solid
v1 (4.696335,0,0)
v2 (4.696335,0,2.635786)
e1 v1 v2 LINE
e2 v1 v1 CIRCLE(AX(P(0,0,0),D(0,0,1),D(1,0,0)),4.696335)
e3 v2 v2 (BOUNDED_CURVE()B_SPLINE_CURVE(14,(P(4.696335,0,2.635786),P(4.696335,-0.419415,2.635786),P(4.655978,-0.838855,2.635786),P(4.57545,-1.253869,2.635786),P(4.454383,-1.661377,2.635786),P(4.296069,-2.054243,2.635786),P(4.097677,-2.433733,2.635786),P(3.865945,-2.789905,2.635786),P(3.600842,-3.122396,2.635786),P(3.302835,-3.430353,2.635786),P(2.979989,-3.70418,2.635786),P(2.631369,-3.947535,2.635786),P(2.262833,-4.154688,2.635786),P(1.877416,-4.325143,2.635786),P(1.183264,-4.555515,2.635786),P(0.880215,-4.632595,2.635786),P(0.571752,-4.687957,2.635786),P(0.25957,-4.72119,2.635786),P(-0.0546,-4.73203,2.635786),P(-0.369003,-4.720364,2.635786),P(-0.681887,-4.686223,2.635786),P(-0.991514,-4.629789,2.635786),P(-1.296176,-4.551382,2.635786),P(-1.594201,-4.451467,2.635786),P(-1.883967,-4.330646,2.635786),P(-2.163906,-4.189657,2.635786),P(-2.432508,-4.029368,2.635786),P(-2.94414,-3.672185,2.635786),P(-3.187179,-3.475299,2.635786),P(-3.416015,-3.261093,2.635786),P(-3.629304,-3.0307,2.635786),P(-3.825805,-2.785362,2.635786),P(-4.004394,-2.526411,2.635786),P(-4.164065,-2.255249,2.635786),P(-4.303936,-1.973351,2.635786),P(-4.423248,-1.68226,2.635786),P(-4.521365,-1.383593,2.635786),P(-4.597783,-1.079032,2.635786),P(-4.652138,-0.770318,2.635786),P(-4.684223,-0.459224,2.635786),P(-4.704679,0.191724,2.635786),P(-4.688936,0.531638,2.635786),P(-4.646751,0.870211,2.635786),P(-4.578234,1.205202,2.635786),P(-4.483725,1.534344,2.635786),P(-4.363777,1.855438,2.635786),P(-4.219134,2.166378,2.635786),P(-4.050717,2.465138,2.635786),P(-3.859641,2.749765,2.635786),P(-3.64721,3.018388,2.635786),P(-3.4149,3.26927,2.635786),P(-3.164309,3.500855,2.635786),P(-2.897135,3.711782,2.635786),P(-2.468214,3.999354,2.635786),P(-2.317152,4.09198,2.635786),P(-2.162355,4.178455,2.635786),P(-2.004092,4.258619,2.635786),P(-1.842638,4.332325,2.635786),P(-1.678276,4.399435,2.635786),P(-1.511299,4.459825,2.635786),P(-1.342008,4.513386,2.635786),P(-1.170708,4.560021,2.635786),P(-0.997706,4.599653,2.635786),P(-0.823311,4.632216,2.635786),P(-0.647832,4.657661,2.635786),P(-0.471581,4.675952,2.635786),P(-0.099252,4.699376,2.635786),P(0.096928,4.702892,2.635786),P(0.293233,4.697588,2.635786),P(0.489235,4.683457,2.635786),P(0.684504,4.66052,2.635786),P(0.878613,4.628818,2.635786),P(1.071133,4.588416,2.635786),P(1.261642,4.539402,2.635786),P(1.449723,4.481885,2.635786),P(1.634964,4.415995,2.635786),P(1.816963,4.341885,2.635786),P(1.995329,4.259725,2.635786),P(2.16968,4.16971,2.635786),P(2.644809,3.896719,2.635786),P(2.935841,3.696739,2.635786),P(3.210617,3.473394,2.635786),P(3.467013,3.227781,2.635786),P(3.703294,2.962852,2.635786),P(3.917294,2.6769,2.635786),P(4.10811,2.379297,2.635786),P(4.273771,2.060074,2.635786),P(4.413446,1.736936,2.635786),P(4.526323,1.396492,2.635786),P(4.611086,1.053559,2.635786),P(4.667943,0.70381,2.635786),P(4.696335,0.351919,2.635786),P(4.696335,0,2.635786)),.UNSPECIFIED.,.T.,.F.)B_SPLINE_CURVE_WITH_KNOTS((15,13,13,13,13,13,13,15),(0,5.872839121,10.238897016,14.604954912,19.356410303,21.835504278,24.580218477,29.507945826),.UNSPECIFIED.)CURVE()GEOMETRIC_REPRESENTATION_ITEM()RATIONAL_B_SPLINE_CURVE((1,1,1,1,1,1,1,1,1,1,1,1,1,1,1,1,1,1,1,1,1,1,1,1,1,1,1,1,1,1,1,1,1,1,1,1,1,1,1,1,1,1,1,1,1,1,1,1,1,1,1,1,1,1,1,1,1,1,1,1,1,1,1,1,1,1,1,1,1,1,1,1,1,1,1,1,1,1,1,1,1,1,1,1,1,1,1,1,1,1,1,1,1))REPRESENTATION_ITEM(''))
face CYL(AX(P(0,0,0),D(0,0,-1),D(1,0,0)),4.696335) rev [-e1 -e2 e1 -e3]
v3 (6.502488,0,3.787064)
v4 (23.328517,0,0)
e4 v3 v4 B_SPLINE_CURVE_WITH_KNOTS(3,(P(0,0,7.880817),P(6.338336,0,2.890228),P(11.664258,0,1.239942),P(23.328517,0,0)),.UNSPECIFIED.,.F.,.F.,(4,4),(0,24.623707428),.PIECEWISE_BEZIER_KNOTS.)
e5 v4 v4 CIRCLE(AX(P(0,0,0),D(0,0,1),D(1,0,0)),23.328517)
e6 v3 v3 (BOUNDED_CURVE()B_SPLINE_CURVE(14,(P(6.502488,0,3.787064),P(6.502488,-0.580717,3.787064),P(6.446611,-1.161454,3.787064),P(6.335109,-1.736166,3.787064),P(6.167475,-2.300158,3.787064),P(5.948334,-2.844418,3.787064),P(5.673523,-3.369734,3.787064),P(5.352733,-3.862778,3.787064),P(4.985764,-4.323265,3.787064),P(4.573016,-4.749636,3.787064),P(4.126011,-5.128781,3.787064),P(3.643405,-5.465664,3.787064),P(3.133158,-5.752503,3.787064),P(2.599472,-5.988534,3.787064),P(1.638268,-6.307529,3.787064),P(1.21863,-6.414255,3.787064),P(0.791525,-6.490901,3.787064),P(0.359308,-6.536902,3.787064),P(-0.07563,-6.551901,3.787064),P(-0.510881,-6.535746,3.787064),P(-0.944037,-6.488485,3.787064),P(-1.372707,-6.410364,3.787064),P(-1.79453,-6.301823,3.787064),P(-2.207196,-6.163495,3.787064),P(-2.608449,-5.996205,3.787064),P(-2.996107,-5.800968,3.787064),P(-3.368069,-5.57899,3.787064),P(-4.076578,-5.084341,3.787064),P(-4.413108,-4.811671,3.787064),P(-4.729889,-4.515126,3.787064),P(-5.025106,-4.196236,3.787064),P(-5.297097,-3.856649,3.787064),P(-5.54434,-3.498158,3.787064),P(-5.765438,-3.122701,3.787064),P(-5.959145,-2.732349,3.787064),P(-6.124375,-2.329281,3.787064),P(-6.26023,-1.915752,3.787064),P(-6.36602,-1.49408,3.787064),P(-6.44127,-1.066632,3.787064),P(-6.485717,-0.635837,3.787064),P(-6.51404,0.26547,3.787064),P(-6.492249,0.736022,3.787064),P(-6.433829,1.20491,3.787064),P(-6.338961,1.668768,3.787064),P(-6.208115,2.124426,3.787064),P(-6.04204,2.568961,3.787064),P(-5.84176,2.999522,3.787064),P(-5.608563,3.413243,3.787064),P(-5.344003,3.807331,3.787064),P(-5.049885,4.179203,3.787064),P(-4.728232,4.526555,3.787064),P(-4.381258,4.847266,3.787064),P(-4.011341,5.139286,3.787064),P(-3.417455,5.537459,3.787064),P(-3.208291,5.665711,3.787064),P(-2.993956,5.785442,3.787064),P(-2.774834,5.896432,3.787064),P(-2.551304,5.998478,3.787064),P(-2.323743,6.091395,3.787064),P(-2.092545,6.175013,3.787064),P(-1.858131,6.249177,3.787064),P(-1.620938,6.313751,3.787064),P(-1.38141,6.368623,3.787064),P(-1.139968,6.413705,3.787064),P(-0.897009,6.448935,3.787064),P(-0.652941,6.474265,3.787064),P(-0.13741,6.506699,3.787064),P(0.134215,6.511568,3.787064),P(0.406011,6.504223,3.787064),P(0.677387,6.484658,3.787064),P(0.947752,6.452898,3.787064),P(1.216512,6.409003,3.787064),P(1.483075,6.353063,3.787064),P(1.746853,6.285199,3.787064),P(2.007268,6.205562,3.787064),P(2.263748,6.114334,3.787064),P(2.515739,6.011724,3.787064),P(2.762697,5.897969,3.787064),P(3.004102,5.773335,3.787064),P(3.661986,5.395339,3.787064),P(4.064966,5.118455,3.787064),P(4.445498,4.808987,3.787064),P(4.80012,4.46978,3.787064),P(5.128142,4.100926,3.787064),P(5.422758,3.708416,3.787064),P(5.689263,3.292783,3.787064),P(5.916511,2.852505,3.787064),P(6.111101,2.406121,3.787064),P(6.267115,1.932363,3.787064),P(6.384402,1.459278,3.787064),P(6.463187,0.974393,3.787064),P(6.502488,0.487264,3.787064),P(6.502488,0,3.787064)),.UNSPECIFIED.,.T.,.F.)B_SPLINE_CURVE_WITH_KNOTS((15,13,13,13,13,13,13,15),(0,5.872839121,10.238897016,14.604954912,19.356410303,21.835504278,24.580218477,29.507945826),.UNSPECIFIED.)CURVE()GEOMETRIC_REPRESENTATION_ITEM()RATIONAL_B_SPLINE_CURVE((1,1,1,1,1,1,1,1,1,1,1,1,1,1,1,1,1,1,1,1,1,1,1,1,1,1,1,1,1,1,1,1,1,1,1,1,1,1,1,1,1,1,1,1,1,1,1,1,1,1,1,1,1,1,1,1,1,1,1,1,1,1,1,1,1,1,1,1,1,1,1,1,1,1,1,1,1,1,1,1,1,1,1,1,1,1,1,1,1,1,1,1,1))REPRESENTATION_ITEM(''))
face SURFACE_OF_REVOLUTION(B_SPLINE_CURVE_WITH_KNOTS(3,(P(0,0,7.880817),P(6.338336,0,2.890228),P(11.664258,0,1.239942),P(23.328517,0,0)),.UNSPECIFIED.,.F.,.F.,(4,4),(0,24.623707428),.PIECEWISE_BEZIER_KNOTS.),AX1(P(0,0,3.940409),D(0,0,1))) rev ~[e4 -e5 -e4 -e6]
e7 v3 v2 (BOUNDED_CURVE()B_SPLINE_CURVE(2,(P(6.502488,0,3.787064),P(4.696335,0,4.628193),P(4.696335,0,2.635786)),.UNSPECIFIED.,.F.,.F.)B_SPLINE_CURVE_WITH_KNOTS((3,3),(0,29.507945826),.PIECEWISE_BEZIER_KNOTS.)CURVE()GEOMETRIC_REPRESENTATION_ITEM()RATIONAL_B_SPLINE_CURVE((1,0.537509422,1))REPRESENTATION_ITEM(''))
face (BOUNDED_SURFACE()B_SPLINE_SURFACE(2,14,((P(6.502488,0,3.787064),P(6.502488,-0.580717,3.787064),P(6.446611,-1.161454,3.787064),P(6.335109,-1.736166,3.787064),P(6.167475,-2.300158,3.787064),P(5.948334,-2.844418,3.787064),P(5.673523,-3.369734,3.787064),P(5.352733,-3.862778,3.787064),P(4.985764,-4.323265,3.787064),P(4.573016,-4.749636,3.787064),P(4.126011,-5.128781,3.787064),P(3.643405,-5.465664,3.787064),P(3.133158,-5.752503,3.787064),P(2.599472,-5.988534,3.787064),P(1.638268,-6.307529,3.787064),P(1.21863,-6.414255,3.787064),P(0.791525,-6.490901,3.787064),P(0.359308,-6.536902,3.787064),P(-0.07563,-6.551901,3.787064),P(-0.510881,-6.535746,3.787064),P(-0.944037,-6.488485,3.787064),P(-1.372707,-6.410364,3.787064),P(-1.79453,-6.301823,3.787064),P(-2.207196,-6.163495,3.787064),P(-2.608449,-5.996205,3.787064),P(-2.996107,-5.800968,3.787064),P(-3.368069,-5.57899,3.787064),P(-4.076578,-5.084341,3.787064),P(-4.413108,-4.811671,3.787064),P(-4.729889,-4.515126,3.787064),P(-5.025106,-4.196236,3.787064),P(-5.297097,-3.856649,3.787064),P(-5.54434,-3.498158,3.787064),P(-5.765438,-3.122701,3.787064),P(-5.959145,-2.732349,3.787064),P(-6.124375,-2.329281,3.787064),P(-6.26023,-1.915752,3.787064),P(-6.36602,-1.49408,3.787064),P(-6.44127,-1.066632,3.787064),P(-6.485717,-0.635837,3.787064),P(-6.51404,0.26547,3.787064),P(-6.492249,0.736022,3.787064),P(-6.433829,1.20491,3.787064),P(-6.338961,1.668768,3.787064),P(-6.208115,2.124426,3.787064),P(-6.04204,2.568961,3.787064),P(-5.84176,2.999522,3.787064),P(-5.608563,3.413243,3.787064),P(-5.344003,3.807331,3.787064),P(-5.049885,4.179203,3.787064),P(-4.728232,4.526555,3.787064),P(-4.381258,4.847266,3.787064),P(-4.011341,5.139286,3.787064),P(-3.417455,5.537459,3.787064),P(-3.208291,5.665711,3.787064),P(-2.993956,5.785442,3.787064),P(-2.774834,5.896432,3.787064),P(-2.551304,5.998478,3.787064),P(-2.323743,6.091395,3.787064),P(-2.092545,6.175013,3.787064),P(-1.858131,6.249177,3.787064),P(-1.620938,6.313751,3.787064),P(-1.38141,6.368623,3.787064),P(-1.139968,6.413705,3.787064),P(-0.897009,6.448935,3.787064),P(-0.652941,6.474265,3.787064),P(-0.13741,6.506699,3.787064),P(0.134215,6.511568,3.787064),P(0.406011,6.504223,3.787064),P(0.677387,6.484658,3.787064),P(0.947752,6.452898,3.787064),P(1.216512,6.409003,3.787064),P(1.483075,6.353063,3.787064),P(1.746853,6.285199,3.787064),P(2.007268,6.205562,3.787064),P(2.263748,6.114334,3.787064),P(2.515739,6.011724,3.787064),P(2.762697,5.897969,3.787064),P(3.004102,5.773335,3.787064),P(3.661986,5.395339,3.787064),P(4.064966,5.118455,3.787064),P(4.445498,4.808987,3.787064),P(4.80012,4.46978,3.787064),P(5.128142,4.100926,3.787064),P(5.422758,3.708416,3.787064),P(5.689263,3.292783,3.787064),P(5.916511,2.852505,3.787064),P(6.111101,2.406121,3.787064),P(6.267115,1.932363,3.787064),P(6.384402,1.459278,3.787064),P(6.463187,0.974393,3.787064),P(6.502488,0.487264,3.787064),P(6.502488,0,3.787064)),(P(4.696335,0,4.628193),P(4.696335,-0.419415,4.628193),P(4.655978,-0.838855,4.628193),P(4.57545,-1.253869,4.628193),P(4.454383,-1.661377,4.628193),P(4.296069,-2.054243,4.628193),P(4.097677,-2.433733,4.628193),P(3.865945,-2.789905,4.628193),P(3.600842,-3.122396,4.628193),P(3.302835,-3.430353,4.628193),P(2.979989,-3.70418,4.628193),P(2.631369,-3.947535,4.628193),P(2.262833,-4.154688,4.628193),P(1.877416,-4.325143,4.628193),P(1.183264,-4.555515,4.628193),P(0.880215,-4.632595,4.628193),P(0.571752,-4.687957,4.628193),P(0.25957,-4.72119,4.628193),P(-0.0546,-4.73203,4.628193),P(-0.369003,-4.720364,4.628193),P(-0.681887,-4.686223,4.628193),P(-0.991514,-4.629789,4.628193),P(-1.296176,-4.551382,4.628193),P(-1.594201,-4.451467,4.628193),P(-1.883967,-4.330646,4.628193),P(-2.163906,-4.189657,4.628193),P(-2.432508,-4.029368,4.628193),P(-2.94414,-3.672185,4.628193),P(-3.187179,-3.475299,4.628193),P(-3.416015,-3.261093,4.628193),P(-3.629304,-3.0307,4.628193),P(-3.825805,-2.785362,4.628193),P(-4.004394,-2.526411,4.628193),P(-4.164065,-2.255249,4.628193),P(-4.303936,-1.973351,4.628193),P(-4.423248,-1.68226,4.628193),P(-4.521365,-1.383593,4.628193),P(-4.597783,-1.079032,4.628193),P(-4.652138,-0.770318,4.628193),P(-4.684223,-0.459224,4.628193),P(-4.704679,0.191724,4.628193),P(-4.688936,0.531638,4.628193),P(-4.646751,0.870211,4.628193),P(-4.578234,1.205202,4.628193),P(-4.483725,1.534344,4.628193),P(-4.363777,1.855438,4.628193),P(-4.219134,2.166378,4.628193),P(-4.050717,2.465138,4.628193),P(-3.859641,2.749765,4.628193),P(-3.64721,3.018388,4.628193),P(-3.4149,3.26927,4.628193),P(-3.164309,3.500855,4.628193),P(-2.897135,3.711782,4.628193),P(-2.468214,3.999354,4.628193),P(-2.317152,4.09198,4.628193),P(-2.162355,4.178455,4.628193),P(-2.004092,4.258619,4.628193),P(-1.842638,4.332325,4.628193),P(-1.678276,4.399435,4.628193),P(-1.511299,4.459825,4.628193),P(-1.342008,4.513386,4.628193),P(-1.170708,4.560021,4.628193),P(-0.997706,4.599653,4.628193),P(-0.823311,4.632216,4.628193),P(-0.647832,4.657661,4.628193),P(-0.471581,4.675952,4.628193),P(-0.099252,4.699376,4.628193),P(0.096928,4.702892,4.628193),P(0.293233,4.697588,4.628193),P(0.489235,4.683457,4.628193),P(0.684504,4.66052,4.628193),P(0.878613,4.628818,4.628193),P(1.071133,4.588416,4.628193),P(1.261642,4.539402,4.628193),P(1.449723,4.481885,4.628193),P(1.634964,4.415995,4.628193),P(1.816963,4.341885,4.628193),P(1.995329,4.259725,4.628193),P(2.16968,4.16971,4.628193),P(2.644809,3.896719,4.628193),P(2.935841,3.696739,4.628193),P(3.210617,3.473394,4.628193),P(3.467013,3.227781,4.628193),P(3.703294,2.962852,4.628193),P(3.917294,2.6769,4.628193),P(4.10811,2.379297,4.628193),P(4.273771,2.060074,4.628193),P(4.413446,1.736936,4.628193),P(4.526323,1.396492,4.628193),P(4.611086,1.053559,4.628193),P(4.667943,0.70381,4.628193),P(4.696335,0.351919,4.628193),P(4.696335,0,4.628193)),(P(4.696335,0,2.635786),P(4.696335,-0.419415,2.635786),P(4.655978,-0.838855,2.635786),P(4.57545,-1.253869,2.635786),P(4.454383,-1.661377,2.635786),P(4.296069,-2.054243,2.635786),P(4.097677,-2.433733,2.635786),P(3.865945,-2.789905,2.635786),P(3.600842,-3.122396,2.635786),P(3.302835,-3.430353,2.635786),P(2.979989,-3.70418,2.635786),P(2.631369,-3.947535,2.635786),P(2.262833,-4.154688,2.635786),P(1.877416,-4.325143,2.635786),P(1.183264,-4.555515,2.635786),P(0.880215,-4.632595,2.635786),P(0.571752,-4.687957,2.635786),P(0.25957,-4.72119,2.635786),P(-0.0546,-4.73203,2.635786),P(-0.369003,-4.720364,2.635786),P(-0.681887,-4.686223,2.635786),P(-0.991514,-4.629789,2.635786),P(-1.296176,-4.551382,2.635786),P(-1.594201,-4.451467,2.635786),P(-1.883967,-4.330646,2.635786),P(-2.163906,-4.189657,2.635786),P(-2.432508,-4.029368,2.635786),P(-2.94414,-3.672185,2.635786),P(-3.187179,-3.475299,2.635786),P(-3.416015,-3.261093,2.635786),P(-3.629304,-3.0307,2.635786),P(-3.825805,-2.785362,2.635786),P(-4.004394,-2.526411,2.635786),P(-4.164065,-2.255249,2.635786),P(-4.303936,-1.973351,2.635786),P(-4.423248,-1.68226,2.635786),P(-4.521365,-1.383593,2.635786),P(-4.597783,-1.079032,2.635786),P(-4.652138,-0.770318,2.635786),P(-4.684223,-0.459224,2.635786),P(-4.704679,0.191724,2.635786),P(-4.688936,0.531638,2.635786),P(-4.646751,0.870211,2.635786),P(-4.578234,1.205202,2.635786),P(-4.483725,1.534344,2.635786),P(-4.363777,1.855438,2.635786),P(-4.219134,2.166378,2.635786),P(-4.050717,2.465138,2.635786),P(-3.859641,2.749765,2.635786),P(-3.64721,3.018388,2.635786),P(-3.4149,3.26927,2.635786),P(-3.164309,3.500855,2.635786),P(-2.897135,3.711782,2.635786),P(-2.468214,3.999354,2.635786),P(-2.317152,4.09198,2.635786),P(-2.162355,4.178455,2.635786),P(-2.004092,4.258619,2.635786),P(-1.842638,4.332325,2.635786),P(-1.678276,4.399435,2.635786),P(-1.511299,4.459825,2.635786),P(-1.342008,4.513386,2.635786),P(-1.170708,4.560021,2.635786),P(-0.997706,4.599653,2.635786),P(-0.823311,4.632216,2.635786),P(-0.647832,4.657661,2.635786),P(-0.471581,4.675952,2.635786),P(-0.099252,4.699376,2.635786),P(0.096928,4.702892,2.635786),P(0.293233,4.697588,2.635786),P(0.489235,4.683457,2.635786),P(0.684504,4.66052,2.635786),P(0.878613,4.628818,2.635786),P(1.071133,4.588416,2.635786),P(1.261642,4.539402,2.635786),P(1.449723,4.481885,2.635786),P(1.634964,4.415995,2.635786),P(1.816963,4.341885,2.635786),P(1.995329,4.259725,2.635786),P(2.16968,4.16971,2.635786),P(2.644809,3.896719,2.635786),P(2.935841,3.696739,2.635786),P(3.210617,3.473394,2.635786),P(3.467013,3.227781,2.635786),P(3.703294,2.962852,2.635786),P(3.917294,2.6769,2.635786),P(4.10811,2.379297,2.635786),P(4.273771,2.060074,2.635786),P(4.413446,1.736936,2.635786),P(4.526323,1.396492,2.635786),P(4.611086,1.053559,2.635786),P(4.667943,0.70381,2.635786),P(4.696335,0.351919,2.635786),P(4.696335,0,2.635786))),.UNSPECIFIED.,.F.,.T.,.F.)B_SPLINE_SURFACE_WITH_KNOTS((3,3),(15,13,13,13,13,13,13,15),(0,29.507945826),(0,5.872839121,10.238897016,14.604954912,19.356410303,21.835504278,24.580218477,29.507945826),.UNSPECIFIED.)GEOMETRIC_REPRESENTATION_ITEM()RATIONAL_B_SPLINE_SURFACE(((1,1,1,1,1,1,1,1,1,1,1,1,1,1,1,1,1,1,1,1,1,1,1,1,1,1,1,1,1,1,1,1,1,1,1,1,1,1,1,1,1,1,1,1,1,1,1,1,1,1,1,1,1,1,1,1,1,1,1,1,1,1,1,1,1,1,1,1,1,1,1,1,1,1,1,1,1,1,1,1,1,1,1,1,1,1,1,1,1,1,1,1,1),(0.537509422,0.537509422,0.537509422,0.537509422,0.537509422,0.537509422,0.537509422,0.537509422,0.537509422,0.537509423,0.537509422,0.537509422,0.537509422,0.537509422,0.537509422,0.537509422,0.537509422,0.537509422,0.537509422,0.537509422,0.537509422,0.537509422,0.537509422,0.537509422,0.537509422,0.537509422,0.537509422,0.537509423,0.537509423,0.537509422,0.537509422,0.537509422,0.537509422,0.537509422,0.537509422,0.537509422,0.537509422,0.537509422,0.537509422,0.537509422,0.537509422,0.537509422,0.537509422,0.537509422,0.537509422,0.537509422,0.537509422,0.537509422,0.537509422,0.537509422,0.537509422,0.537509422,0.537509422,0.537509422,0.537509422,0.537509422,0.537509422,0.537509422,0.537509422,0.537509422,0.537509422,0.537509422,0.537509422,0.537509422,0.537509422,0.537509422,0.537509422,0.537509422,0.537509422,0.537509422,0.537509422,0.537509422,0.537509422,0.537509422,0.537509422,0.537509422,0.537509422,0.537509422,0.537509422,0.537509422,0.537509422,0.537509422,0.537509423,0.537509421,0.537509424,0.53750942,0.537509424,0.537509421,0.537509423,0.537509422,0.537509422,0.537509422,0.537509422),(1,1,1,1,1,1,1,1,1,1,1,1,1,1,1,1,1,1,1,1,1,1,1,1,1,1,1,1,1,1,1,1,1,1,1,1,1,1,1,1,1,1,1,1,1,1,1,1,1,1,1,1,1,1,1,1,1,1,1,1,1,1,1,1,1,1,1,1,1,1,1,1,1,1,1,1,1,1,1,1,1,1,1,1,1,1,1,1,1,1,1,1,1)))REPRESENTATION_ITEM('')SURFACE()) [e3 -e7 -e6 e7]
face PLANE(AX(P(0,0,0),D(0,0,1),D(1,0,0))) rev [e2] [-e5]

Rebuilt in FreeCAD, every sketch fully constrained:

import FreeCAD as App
import Part
import Sketcher
from FreeCAD import Vector
Q = App.Units.Quantity


def edges_at(feature, points):
    """Names of the edges that pass closest to the given points."""
    edges = feature.Shape.Edges
    near = lambda p: min(range(len(edges)), key=lambda i: edges[i].distToShape(Part.Vertex(*p))[0])
    return sorted({f"Edge{near(p) + 1}" for p in points})

doc = App.newDocument("Part")
body = doc.addObject("PartDesign::Body", "Body")

# Sketch on XZ plane
sketch1 = doc.addObject("Sketcher::SketchObject", "Sketch")
body.addObject(sketch1)
sketch1.AttachmentSupport = (doc.XZ_Plane, [""])
sketch1.MapMode = "FlatFace"
sketch1.addGeometry([
    Part.LineSegment(Vector(0, 7.880817, 0), Vector(0, 0, 0)),
    Part.LineSegment(Vector(0, 0, 0), Vector(23.328517, 0, 0)),
    Part.BSplineCurve([Vector(0, 7.880817, 0), Vector(6.338336, 2.890228, 0), Vector(11.664258, 1.239942, 0), Vector(23.328517, 0, 0)], [4, 4], [0, 24.623707428], False, 3, [1, 1, 1, 1], False),
], False)
sketch1.addConstraint([
    Sketcher.Constraint("Block", 2),
    Sketcher.Constraint("Coincident", 0, 2, 1, 1),
    Sketcher.Constraint("Coincident", 1, 2, 2, 2),
    Sketcher.Constraint("Coincident", 2, 1, 0, 1),
    Sketcher.Constraint("Vertical", 0),
    Sketcher.Constraint("Horizontal", 1),
])
revolution = doc.addObject("PartDesign::Revolution", "Revolution")
body.addObject(revolution)
revolution.Profile = sketch1
revolution.ReferenceAxis = (sketch1, ["V_Axis"])
revolution.Angle = 360

# Sketch on XY plane
sketch2 = doc.addObject("Sketcher::SketchObject", "Sketch001")
body.addObject(sketch2)
sketch2.AttachmentSupport = (doc.XY_Plane, [""])
sketch2.MapMode = "FlatFace"
sketch2.addGeometry(Part.Circle(Vector(0, 0, 0), Vector(0, 0, 1), 4.7), False)
sketch2.addConstraint([
    Sketcher.Constraint("Coincident", 0, 3, -1, 1),
    Sketcher.Constraint("Diameter", 0, Q("9.392671 mm")),
])
pocket1 = doc.addObject("PartDesign::Pocket", "Pocket")
body.addObject(pocket1)
pocket1.Profile = sketch2
pocket1.Length = Q("1 in")
pocket1.Reversed = True
doc.recompute()

fillet = doc.addObject("PartDesign::Fillet", "Fillet")
body.addObject(fillet)
fillet.Base = (pocket1, edges_at(pocket1, [(-4.696, 0, 4.709)]))
fillet.Radius = Q("0.05 in")

doc.recompute()
